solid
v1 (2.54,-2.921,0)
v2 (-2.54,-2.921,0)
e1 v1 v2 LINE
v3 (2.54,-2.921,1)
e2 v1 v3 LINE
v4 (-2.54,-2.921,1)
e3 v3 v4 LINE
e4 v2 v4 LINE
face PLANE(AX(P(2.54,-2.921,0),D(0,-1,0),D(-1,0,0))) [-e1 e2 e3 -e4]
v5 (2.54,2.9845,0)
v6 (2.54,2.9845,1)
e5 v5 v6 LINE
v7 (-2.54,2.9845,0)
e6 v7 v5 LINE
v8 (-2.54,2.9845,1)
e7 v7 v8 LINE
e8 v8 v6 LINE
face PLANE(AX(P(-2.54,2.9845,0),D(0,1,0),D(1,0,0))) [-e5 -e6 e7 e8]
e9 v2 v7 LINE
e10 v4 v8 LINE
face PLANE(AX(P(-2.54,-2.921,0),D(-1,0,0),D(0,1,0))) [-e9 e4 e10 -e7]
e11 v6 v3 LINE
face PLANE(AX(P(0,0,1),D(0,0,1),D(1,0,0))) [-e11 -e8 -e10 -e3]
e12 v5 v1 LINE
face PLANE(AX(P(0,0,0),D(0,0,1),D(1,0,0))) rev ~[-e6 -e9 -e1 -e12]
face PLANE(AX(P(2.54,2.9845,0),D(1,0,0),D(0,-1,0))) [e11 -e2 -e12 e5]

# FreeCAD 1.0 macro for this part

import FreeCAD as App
import Part
import Sketcher
from FreeCAD import Vector
Q = App.Units.Quantity

doc = App.newDocument("Part")
body = doc.addObject("PartDesign::Body", "Body")

# Sketch on XY plane
sketch1 = body.newObject("Sketcher::SketchObject", "Sketch")
sketch1.AttachmentSupport = (doc.getObject("XY_Plane"), [""])
sketch1.MapMode = "FlatFace"
sketch1.addGeometry([
    Part.LineSegment(Vector(3, 3, 0), Vector(-3, 3, 0)),
    Part.LineSegment(Vector(-3, 3, 0), Vector(-3, -3, 0)),
    Part.LineSegment(Vector(-3, -3, 0), Vector(3, -3, 0)),
    Part.LineSegment(Vector(3, -3, 0), Vector(3, 3, 0)),
], False)
sketch1.addConstraint([
    Sketcher.Constraint("Coincident", 0, 2, 1, 1),
    Sketcher.Constraint("Coincident", 1, 2, 2, 1),
    Sketcher.Constraint("Coincident", 2, 2, 3, 1),
    Sketcher.Constraint("Coincident", 3, 2, 0, 1),
    Sketcher.Constraint("Horizontal", 0),
    Sketcher.Constraint("Vertical", 1),
    Sketcher.Constraint("Horizontal", 2),
    Sketcher.Constraint("Vertical", 3),
    Sketcher.Constraint("DistanceX", 0, 2, 0, 1, Q("5.08 mm")),
    Sketcher.Constraint("DistanceX", 0, 2, -1, 1, Q("2.54 mm")),
    Sketcher.Constraint("DistanceY", 1, 2, 1, 1, Q("5.9055 mm")),
    Sketcher.Constraint("DistanceY", 1, 2, -1, 1, Q("2.921 mm")),
])
pad1 = body.newObject("PartDesign::Pad", "Pad")
pad1.Profile = sketch1
pad1.Length = 1

doc.recompute()
